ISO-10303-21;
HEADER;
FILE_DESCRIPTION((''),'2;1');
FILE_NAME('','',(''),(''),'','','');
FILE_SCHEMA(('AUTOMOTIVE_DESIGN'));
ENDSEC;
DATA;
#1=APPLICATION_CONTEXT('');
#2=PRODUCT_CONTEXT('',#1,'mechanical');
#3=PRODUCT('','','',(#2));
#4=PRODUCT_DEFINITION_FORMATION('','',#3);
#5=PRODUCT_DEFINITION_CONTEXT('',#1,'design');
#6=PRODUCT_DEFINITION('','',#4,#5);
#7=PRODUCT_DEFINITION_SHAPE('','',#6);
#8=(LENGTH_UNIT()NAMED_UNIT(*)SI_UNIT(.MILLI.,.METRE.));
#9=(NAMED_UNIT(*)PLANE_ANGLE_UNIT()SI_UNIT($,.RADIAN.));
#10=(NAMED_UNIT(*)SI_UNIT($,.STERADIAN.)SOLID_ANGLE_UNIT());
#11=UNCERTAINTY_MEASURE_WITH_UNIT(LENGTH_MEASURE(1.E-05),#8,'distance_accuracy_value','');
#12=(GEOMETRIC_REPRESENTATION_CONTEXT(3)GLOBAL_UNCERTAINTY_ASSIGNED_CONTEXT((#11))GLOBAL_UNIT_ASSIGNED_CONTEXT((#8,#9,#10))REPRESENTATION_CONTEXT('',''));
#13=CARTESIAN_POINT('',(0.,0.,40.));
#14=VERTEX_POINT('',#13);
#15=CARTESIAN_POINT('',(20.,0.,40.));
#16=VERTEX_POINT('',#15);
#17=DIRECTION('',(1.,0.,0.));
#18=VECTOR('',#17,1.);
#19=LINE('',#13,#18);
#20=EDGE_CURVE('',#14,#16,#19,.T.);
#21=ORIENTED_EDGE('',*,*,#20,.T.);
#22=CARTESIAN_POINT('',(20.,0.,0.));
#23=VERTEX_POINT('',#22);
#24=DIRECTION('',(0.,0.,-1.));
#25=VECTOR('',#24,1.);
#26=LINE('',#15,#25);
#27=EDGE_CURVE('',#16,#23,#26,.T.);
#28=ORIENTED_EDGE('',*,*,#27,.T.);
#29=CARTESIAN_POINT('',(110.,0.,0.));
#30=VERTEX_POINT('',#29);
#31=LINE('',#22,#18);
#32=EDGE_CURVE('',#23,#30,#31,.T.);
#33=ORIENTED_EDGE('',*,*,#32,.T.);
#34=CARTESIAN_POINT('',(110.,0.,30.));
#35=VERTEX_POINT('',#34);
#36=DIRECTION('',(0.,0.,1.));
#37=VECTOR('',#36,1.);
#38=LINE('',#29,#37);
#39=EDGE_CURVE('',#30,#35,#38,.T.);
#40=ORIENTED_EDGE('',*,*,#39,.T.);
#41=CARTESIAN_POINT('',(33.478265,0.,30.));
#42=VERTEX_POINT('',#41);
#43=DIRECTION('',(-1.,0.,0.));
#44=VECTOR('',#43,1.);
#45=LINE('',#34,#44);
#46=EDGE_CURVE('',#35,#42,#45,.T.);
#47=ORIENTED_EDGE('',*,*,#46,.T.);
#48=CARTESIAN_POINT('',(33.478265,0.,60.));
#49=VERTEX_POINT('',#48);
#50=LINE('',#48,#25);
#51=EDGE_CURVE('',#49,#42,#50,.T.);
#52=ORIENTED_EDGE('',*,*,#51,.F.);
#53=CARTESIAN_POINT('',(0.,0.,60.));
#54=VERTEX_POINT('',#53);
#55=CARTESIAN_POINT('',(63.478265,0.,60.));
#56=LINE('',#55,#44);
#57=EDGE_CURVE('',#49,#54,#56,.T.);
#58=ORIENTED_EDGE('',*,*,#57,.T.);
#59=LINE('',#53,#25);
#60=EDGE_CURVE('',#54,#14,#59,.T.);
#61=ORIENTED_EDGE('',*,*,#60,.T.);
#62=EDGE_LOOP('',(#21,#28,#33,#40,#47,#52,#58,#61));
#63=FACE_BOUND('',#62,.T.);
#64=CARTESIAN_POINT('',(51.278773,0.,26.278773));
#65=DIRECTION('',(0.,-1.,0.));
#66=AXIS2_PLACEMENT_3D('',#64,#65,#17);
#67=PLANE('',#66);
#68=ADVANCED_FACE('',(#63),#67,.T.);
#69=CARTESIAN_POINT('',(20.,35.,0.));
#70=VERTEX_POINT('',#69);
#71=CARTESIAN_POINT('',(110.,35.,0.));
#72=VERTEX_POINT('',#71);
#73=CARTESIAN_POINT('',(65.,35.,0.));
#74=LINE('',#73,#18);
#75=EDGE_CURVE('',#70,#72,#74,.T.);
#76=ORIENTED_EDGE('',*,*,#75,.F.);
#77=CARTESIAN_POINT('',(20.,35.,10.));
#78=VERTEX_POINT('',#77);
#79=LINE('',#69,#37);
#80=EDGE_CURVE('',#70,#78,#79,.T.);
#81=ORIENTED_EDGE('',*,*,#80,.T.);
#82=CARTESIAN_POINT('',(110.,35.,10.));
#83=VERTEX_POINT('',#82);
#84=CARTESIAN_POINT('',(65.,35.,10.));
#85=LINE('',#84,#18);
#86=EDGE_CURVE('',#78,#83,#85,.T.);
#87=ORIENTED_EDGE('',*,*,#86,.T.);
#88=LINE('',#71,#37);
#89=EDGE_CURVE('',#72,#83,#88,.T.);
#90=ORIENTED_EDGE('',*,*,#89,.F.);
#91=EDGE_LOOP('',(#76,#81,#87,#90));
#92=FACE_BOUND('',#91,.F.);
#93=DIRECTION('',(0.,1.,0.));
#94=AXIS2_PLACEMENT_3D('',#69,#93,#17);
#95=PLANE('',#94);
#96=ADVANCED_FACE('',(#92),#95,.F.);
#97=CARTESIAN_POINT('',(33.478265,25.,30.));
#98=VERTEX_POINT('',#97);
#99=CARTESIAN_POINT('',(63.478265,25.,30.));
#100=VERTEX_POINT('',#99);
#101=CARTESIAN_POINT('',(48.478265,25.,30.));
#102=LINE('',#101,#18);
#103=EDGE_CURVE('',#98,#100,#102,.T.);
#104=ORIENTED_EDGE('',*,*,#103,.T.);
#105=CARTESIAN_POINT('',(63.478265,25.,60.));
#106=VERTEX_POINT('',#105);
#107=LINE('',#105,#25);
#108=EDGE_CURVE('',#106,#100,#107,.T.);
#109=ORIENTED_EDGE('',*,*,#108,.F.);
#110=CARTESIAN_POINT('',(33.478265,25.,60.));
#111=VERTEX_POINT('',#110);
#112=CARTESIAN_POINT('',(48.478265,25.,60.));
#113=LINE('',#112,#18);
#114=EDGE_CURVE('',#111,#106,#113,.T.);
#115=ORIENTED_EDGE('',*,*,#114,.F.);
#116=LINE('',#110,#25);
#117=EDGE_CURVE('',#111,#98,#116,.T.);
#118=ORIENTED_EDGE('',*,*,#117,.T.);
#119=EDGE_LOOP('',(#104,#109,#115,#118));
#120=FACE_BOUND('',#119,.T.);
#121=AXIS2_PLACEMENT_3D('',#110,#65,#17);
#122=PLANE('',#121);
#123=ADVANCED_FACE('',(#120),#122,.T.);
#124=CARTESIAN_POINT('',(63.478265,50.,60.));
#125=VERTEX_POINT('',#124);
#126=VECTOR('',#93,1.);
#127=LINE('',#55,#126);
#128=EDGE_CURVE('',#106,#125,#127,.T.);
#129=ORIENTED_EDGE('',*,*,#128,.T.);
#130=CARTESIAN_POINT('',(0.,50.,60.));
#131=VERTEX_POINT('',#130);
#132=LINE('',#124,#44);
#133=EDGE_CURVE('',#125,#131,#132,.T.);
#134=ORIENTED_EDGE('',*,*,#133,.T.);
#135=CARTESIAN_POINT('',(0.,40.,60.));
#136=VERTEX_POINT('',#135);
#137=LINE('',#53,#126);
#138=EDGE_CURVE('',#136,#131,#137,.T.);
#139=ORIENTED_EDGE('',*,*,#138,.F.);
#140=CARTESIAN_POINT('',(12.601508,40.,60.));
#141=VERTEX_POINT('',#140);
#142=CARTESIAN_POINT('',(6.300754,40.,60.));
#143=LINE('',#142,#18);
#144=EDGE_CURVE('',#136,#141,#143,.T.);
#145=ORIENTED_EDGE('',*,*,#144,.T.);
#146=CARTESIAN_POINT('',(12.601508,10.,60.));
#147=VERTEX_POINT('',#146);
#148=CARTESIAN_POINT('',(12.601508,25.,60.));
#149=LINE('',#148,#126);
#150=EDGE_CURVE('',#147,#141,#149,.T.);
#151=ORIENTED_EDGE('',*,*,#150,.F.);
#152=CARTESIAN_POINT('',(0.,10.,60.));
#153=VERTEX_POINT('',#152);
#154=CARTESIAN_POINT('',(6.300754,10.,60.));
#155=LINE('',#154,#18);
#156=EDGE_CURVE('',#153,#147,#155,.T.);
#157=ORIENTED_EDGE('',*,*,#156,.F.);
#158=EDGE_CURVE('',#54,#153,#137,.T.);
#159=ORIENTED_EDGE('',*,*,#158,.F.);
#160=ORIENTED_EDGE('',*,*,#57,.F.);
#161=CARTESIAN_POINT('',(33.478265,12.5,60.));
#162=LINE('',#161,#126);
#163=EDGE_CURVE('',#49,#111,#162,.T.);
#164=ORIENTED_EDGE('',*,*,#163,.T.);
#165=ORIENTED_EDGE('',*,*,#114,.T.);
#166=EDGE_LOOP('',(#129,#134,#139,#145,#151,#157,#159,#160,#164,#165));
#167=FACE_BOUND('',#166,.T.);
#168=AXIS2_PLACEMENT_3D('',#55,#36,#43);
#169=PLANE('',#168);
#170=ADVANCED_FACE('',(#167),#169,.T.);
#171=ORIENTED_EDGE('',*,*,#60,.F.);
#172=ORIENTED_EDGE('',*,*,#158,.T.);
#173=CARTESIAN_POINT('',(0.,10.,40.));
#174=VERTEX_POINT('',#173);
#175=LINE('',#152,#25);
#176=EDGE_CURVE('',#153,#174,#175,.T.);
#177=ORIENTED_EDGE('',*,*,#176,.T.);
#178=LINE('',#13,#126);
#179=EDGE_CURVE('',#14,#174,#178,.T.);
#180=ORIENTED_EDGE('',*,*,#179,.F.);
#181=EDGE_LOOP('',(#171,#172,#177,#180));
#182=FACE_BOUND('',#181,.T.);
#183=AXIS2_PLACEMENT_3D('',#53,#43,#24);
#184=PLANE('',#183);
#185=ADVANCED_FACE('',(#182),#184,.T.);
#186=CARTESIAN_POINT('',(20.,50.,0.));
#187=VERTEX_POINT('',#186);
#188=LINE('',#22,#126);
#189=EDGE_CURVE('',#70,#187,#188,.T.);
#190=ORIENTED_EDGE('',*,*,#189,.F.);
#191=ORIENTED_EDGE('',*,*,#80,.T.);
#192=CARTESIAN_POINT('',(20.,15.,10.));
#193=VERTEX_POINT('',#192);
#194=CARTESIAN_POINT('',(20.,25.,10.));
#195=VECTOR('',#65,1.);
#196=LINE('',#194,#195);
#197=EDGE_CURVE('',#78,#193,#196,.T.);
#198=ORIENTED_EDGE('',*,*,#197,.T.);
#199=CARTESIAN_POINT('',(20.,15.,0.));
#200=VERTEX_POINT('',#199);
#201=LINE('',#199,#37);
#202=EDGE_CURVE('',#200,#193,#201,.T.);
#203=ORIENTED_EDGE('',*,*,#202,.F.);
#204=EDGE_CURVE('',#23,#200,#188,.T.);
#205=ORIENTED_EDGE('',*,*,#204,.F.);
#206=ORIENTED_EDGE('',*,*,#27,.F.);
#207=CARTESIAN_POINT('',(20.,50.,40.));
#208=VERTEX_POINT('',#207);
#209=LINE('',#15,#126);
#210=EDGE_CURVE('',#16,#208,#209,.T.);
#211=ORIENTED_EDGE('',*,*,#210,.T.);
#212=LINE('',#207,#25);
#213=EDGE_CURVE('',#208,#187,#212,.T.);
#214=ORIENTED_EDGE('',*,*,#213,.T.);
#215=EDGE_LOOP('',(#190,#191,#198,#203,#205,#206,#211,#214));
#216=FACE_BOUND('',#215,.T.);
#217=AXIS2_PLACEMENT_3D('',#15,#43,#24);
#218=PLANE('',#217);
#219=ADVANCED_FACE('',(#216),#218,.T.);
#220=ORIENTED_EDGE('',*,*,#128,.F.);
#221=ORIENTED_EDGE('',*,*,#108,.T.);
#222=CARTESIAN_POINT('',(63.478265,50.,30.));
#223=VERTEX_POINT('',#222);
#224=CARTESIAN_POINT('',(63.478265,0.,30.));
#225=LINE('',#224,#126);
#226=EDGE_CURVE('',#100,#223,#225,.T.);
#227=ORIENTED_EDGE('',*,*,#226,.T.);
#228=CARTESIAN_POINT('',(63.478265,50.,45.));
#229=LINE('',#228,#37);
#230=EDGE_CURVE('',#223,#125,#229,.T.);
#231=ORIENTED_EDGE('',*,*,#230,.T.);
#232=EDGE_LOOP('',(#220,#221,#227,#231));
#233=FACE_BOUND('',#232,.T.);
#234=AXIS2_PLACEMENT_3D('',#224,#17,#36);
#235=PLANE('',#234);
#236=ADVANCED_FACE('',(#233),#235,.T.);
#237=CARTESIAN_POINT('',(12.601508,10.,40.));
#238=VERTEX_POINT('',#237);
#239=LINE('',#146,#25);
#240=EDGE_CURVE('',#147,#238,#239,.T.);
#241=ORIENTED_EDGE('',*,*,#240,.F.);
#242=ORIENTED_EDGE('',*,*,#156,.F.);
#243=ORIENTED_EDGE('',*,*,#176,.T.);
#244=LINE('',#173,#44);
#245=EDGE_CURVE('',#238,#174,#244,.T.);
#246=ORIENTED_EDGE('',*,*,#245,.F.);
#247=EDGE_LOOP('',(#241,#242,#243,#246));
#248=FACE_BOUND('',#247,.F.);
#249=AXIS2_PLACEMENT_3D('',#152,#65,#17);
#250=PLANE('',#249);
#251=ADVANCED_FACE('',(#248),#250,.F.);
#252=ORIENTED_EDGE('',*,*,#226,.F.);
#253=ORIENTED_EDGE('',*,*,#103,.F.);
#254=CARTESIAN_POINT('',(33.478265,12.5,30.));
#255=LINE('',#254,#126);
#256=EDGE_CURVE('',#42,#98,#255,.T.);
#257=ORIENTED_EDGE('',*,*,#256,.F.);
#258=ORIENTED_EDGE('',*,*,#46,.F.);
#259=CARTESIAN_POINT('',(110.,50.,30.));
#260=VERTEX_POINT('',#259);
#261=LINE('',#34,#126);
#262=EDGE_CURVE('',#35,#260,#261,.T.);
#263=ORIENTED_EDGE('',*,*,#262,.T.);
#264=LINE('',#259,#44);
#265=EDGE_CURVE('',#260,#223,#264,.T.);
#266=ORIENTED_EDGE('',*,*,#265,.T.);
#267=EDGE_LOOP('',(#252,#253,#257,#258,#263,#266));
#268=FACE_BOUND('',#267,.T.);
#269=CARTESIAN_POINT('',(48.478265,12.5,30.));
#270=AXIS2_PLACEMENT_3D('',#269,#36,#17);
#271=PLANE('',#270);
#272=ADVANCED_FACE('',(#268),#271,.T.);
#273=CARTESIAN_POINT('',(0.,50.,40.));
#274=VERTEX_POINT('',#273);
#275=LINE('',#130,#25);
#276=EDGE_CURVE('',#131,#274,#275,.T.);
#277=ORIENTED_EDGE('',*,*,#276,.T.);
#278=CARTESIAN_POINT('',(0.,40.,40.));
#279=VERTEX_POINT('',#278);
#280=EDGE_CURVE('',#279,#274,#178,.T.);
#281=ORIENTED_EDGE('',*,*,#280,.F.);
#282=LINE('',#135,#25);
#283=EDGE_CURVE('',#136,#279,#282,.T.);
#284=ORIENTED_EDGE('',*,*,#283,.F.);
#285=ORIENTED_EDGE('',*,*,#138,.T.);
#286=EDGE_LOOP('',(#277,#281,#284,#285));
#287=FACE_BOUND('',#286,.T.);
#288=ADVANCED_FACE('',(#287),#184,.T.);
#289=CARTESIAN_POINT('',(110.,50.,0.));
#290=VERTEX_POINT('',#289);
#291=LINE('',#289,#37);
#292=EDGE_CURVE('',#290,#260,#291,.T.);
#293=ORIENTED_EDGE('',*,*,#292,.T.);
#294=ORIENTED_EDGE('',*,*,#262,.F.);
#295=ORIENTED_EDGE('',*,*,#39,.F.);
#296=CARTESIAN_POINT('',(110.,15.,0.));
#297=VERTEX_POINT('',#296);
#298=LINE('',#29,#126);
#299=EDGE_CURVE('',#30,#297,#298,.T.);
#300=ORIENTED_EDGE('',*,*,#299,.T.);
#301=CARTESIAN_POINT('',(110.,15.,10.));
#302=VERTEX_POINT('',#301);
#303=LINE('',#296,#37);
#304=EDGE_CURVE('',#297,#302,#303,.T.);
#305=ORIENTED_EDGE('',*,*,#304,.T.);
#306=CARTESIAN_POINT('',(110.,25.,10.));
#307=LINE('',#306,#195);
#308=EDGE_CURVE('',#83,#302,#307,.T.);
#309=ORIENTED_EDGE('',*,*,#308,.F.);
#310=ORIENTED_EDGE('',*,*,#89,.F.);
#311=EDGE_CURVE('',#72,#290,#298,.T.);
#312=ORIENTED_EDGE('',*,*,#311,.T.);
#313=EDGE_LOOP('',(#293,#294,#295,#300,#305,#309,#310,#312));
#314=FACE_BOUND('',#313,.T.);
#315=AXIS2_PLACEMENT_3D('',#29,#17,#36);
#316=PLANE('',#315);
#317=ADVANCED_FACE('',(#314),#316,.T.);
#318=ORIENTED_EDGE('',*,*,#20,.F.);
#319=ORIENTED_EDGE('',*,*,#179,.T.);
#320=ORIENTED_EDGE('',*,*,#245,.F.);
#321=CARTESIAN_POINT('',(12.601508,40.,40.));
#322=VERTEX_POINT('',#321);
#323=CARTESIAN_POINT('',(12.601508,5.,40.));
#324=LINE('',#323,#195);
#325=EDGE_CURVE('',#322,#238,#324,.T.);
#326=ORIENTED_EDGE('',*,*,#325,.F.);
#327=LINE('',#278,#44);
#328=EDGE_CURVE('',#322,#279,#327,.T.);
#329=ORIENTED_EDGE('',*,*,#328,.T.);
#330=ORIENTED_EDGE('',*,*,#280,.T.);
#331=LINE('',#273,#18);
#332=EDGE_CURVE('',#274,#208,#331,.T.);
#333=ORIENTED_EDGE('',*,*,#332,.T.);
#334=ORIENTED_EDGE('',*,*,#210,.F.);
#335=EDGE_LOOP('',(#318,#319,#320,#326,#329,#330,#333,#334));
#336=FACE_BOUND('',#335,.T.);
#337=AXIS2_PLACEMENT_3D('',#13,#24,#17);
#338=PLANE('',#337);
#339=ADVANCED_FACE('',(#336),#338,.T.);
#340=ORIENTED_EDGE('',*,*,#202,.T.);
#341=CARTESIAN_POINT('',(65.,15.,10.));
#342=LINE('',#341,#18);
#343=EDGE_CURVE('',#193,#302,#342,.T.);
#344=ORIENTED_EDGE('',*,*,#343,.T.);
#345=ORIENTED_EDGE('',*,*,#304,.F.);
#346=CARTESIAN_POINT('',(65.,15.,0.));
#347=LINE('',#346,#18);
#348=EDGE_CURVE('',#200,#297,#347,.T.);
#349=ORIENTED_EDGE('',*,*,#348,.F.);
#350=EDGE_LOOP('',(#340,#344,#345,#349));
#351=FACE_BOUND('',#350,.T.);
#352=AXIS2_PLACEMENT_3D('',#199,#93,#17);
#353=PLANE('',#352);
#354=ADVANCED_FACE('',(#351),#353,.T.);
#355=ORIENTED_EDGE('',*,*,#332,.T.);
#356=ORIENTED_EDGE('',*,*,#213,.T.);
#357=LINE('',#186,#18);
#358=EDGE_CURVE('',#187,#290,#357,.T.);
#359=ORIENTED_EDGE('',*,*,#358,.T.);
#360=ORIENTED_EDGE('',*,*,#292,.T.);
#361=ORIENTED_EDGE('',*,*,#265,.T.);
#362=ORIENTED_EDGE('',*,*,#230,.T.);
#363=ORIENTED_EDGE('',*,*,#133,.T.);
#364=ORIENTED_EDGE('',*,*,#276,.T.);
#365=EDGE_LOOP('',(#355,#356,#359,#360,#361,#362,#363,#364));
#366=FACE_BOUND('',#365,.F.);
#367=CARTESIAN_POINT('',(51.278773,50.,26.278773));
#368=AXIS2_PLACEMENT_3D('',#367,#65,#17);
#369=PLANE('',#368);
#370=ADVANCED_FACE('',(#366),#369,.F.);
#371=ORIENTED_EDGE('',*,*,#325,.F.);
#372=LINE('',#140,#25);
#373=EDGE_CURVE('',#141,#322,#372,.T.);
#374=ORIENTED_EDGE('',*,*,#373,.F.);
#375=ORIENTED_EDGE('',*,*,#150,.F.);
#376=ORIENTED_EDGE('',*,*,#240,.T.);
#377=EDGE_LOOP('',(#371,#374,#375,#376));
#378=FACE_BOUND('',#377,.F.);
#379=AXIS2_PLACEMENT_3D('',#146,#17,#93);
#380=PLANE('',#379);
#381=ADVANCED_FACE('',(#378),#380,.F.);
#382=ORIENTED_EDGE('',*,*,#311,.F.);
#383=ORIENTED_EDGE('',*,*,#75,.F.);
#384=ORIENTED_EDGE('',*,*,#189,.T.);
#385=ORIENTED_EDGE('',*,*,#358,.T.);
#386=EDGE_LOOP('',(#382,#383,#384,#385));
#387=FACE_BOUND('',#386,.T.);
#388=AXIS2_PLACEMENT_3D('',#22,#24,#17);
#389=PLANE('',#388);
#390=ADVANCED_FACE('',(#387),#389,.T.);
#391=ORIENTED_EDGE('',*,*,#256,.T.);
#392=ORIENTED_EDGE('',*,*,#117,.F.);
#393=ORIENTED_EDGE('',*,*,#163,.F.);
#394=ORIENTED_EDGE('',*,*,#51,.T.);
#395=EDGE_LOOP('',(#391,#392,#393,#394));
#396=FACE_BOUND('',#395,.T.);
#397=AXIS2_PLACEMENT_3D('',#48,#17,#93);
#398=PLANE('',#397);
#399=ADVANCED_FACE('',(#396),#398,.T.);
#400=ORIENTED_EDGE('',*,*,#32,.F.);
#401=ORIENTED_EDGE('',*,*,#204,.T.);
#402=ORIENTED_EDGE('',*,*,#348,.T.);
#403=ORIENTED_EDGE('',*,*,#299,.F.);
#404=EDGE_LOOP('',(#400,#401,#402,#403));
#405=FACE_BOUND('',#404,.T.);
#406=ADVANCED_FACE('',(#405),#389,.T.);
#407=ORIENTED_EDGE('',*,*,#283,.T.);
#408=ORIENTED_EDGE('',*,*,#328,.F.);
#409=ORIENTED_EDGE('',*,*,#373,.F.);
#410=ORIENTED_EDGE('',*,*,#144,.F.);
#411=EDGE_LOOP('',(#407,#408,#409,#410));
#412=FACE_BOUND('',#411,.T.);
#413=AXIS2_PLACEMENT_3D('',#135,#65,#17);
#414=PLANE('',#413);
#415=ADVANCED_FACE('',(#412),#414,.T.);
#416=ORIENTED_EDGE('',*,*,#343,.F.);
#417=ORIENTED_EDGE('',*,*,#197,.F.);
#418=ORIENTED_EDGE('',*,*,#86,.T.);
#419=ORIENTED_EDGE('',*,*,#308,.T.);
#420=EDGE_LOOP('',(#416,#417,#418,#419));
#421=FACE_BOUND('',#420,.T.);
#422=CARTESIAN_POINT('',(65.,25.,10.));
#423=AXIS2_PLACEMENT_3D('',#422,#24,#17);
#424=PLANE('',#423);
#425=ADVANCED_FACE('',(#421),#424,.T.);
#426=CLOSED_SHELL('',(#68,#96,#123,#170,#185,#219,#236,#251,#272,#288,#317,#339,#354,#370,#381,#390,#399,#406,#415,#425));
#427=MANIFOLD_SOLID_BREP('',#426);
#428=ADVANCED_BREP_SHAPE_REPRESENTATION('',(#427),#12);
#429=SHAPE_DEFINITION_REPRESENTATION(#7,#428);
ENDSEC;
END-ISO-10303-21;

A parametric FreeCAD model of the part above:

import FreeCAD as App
import Part
import Sketcher
from FreeCAD import Vector

doc = App.newDocument("Part")
params = doc.addObject("Spreadsheet::Sheet", "Params")
for row, (alias, value) in enumerate([
    ("sketch1_width", "90 mm"),
    ("sketch1_width2", "20 mm"),
    ("sketch1_height", "40 mm"),
    ("pad1_length", "50 mm"),
    ("sketch2_width", "30 mm"),
    ("sketch2_height", "25 mm"),
    ("pocket1_length", "30 mm"),
    ("sketch3_height", "30 mm"),
    ("pocket2_length", "60 mm"),
    ("sketch4_width", "90 mm"),
    ("sketch4_height", "20 mm"),
    ("pocket3_length", "10 mm"),
], start=1):
    params.set(f"A{row}", alias)
    params.set(f"B{row}", "=" + value)
    params.setAlias(f"B{row}", alias)

body = doc.addObject("PartDesign::Body", "Body")

# Sketch on XZ plane
sketch1 = doc.addObject("Sketcher::SketchObject", "Sketch")
body.addObject(sketch1)
sketch1.AttachmentSupport = (doc.XZ_Plane, [""])
sketch1.MapMode = "FlatFace"
sketch1.addGeometry([
    Part.LineSegment(Vector(20, 40, 0), Vector(20, 0, 0)),  # 0
    Part.LineSegment(Vector(20, 0, 0), Vector(110, 0, 0)),  # 1
    Part.LineSegment(Vector(110, 0, 0), Vector(110, 30, 0)),  # 2
    Part.LineSegment(Vector(110, 30, 0), Vector(63.478265, 30, 0)),  # 3
    Part.LineSegment(Vector(63.478265, 30, 0), Vector(63.478265, 60, 0)),  # 4
    Part.LineSegment(Vector(63.478265, 60, 0), Vector(0, 60, 0)),  # 5
    Part.LineSegment(Vector(0, 60, 0), Vector(0, 40, 0)),  # 6
    Part.LineSegment(Vector(0, 40, 0), Vector(20, 40, 0)),  # 7
], False)
sketch1.addConstraint([
    Sketcher.Constraint("Coincident", 0, 2, 1, 1),
    Sketcher.Constraint("Coincident", 1, 2, 2, 1),
    Sketcher.Constraint("Coincident", 2, 2, 3, 1),
    Sketcher.Constraint("Coincident", 3, 2, 4, 1),
    Sketcher.Constraint("Coincident", 4, 2, 5, 1),
    Sketcher.Constraint("Coincident", 5, 2, 6, 1),
    Sketcher.Constraint("Coincident", 6, 2, 7, 1),
    Sketcher.Constraint("Coincident", 7, 2, 0, 1),
    Sketcher.Constraint("Vertical", 0),
    Sketcher.Constraint("Horizontal", 1),
    Sketcher.Constraint("Vertical", 2),
    Sketcher.Constraint("Horizontal", 3),
    Sketcher.Constraint("Vertical", 4),
    Sketcher.Constraint("Horizontal", 5),
    Sketcher.Constraint("Vertical", 6),
    Sketcher.Constraint("Horizontal", 7),
    Sketcher.Constraint("PointOnObject", 0, 2, -1),
    Sketcher.Constraint("PointOnObject", 5, 2, -2),
    Sketcher.Constraint("Equal", 2, 4),
    Sketcher.Constraint("Equal", 7, 6),
    Sketcher.Constraint("DistanceX", 1, 1, 1, 2, 90.0),
    Sketcher.Constraint("DistanceX", 7, 1, 7, 2, 20.0),
    Sketcher.Constraint("DistanceY", 0, 2, 0, 1, 40.0),
    Sketcher.Constraint("DistanceX", 3, 2, 3, 1, 46.521735),
])
sketch1.setExpression("Constraints[20]", "Params.sketch1_width")
sketch1.setExpression("Constraints[21]", "Params.sketch1_width2")
sketch1.setExpression("Constraints[22]", "Params.sketch1_height")
pad1 = doc.addObject("PartDesign::Pad", "Pad")
body.addObject(pad1)
pad1.Profile = sketch1
pad1.setExpression("Length", "Params.pad1_length")
pad1.Reversed = True

# Sketch on XY plane
sketch2 = doc.addObject("Sketcher::SketchObject", "Sketch001")
body.addObject(sketch2)
sketch2.AttachmentSupport = (doc.XY_Plane, [""])
sketch2.MapMode = "FlatFace"
sketch2.AttachmentOffset = App.Placement(Vector(0, 0, 60), App.Rotation())
sketch2.addGeometry([
    Part.LineSegment(Vector(33.478265, 25, 0), Vector(33.478265, 0, 0)),
    Part.LineSegment(Vector(33.478265, 0, 0), Vector(63.478265, 0, 0)),
    Part.LineSegment(Vector(63.478265, 0, 0), Vector(63.478265, 25, 0)),
    Part.LineSegment(Vector(63.478265, 25, 0), Vector(33.478265, 25, 0)),
], False)
sketch2.addConstraint([
    Sketcher.Constraint("Coincident", 0, 2, 1, 1),
    Sketcher.Constraint("Coincident", 1, 2, 2, 1),
    Sketcher.Constraint("Coincident", 2, 2, 3, 1),
    Sketcher.Constraint("Coincident", 3, 2, 0, 1),
    Sketcher.Constraint("Vertical", 0),
    Sketcher.Constraint("Horizontal", 1),
    Sketcher.Constraint("Vertical", 2),
    Sketcher.Constraint("Horizontal", 3),
    Sketcher.Constraint("PointOnObject", 0, 2, -1),
    Sketcher.Constraint("DistanceX", 1, 1, 1, 2, 30.0),
    Sketcher.Constraint("DistanceY", 0, 2, 0, 1, 25.0),
    Sketcher.Constraint("DistanceX", -1, 1, 0, 2, 33.478265),
])
sketch2.setExpression("Constraints[9]", "Params.sketch2_width")
sketch2.setExpression("Constraints[10]", "Params.sketch2_height")
pocket1 = doc.addObject("PartDesign::Pocket", "Pocket")
body.addObject(pocket1)
pocket1.Profile = sketch2
pocket1.setExpression("Length", "Params.pocket1_length")

# Sketch on XY plane
sketch3 = doc.addObject("Sketcher::SketchObject", "Sketch002")
body.addObject(sketch3)
sketch3.AttachmentSupport = (doc.XY_Plane, [""])
sketch3.MapMode = "FlatFace"
sketch3.AttachmentOffset = App.Placement(Vector(0, 0, 60), App.Rotation())
sketch3.addGeometry([
    Part.LineSegment(Vector(0, 40, 0), Vector(0, 10, 0)),
    Part.LineSegment(Vector(0, 10, 0), Vector(12.601508, 10, 0)),
    Part.LineSegment(Vector(12.601508, 10, 0), Vector(12.601508, 40, 0)),
    Part.LineSegment(Vector(12.601508, 40, 0), Vector(0, 40, 0)),
], False)
sketch3.addConstraint([
    Sketcher.Constraint("Coincident", 0, 2, 1, 1),
    Sketcher.Constraint("Coincident", 1, 2, 2, 1),
    Sketcher.Constraint("Coincident", 2, 2, 3, 1),
    Sketcher.Constraint("Coincident", 3, 2, 0, 1),
    Sketcher.Constraint("Vertical", 0),
    Sketcher.Constraint("Horizontal", 1),
    Sketcher.Constraint("Vertical", 2),
    Sketcher.Constraint("Horizontal", 3),
    Sketcher.Constraint("PointOnObject", 0, 2, -2),
    Sketcher.Constraint("DistanceY", 0, 2, 0, 1, 30.0),
    Sketcher.Constraint("DistanceY", -1, 1, 0, 2, 10.0),
    Sketcher.Constraint("DistanceX", 1, 1, 1, 2, 12.601508),
])
sketch3.setExpression("Constraints[9]", "Params.sketch3_height")
pocket2 = doc.addObject("PartDesign::Pocket", "Pocket001")
body.addObject(pocket2)
pocket2.Profile = sketch3
pocket2.setExpression("Length", "Params.pocket2_length")

# Sketch on XY plane
sketch4 = doc.addObject("Sketcher::SketchObject", "Sketch003")
body.addObject(sketch4)
sketch4.AttachmentSupport = (doc.XY_Plane, [""])
sketch4.MapMode = "FlatFace"
sketch4.addGeometry([
    Part.LineSegment(Vector(20, 15, 0), Vector(20, 35, 0)),
    Part.LineSegment(Vector(20, 35, 0), Vector(110, 35, 0)),
    Part.LineSegment(Vector(110, 35, 0), Vector(110, 15, 0)),
    Part.LineSegment(Vector(110, 15, 0), Vector(20, 15, 0)),
], False)
sketch4.addConstraint([
    Sketcher.Constraint("Coincident", 0, 2, 1, 1),
    Sketcher.Constraint("Coincident", 1, 2, 2, 1),
    Sketcher.Constraint("Coincident", 2, 2, 3, 1),
    Sketcher.Constraint("Coincident", 3, 2, 0, 1),
    Sketcher.Constraint("Vertical", 0),
    Sketcher.Constraint("Horizontal", 1),
    Sketcher.Constraint("Vertical", 2),
    Sketcher.Constraint("Horizontal", 3),
    Sketcher.Constraint("DistanceX", 1, 1, 1, 2, 90.0),
    Sketcher.Constraint("DistanceY", 0, 1, 0, 2, 20.0),
    Sketcher.Constraint("DistanceX", -1, 1, 0, 2, 20.0),
    Sketcher.Constraint("DistanceY", -1, 1, 0, 2, 35.0),
])
sketch4.setExpression("Constraints[8]", "Params.sketch4_width")
sketch4.setExpression("Constraints[9]", "Params.sketch4_height")
pocket3 = doc.addObject("PartDesign::Pocket", "Pocket002")
body.addObject(pocket3)
pocket3.Profile = sketch4
pocket3.setExpression("Length", "Params.pocket3_length")
pocket3.Reversed = True

doc.recompute()
